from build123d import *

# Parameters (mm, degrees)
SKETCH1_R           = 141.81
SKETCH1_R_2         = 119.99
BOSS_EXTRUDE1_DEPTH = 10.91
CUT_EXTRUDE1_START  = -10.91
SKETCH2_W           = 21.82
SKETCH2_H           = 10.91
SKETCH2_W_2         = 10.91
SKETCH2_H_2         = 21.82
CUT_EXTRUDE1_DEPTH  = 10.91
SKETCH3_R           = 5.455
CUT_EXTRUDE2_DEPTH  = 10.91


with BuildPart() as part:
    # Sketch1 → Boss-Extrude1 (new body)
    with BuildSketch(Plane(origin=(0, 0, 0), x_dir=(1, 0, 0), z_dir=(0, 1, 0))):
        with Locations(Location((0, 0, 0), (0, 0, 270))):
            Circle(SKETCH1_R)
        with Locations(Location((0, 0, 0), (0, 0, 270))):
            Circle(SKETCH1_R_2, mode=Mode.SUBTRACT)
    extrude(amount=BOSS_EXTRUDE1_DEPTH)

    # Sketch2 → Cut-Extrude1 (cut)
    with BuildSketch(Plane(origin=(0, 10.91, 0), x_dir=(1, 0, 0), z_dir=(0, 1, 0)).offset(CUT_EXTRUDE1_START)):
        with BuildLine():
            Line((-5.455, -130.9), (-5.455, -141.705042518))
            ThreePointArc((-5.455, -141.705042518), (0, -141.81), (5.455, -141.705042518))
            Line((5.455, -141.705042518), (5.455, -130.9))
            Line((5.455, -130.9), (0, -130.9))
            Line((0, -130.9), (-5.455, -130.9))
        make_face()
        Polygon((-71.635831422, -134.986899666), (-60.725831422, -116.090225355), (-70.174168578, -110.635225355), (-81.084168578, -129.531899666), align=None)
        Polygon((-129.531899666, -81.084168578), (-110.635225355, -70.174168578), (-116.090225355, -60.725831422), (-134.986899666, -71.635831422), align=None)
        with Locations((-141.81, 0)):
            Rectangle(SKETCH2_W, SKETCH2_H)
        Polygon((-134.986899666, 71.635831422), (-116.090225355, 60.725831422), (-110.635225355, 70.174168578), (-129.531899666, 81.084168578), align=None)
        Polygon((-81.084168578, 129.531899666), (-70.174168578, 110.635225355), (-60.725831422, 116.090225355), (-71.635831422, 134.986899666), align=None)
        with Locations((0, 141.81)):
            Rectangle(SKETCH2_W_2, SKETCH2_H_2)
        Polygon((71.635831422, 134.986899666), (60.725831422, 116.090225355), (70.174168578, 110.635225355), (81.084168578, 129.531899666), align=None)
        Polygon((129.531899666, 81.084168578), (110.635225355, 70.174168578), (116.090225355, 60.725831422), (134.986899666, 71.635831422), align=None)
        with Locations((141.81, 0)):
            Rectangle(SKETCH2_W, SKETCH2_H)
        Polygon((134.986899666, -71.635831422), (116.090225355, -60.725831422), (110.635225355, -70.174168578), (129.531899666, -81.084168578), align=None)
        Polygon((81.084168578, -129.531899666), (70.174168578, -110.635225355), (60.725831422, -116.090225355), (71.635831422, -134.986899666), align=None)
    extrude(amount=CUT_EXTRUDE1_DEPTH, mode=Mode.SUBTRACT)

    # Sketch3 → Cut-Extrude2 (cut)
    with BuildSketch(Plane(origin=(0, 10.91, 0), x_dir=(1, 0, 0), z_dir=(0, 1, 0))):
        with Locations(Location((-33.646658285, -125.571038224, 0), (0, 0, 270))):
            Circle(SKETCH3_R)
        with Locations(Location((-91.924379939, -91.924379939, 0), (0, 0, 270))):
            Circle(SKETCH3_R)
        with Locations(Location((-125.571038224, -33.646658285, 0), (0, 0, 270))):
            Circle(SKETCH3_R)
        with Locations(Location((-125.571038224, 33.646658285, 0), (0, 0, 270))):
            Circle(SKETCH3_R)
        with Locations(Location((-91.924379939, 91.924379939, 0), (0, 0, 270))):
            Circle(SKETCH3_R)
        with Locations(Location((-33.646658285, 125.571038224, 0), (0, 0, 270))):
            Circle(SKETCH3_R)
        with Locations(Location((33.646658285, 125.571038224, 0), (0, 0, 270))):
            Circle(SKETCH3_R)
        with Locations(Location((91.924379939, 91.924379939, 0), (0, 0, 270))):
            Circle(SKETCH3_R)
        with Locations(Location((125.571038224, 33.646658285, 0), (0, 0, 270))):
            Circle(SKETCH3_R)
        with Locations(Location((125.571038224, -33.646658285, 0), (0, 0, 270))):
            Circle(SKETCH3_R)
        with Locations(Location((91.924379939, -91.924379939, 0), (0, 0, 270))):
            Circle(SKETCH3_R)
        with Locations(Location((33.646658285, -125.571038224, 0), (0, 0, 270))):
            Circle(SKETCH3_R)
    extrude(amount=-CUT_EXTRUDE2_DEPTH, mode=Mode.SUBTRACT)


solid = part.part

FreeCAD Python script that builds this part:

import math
import FreeCAD as App
import Part
import Sketcher
from FreeCAD import Vector
Q = App.Units.Quantity


def add_polygon(sketch, points):
    """Adds a closed chain of lines whose ends are joined by coincident constraints."""
    first, n = sketch.GeometryCount, len(points)
    for a, b in zip(points, points[1:] + points[:1]):
        sketch.addGeometry(Part.LineSegment(App.Vector(*a, 0), App.Vector(*b, 0)), False)
    for i in range(n):
        sketch.addConstraint(Sketcher.Constraint("Coincident", first + i, 2, first + (i + 1) % n, 1))

doc = App.newDocument("Part")
params = doc.addObject("Spreadsheet::Sheet", "Params")
for row, (alias, value) in enumerate([
    ("sketch1_diameter", "283.62 mm"),
    ("sketch1_diameter2", "239.98 mm"),
    ("pad1_length", "10.91 mm"),
    ("sketch2_radius", "141.81 mm"),
    ("sketch2_width", "10.91 mm"),
    ("sketch2_width2", "21.82 mm"),
    ("sketch2_length", "21.82 mm"),
    ("sketch2_length2", "10.91 mm"),
    ("pocket1_length", "10.91 mm"),
    ("sketch3_diameter", "10.91 mm"),
    ("pocket2_length", "10.91 mm"),
], start=1):
    params.set(f"A{row}", alias)
    params.set(f"B{row}", "=" + value)
    params.setAlias(f"B{row}", alias)

body = doc.addObject("PartDesign::Body", "Body")

# Sketch on XZ plane
sketch1 = body.newObject("Sketcher::SketchObject", "Sketch")
sketch1.AttachmentSupport = (doc.getObject("XZ_Plane"), [""])
sketch1.MapMode = "FlatFace"
sketch1.addGeometry([
    Part.Circle(Vector(0, 0, 0), Vector(0, 0, 1), 142),
    Part.Circle(Vector(0, 0, 0), Vector(0, 0, 1), 120),
], False)
sketch1.addConstraint([
    Sketcher.Constraint("Coincident", 0, 3, -1, 1),
    Sketcher.Constraint("Coincident", 1, 3, -1, 1),
    Sketcher.Constraint("Diameter", 0, 283.62),
    Sketcher.Constraint("Diameter", 1, 239.98),
])
sketch1.setExpression("Constraints[2]", "Params.sketch1_diameter")
sketch1.setExpression("Constraints[3]", "Params.sketch1_diameter2")
pad1 = body.newObject("PartDesign::Pad", "Pad")
pad1.Profile = sketch1
pad1.setExpression("Length", "Params.pad1_length")
pad1.Reversed = True

# Sketch on XZ plane
sketch2 = body.newObject("Sketcher::SketchObject", "Sketch001")
sketch2.AttachmentSupport = (doc.getObject("XZ_Plane"), [""])
sketch2.MapMode = "FlatFace"
sketch2.addGeometry(Part.LineSegment(Vector(-5, 131, 0), Vector(-5, 142, 0)), False)  # 0
sketch2.addGeometry(Part.ArcOfCircle(Part.Circle(Vector(0, 0, 0), Vector(0, 0, 1), 142), math.radians(87.8), math.radians(92.2)), False)  # 1
sketch2.addGeometry(Part.LineSegment(Vector(5, 142, 0), Vector(5, 131, 0)), False)  # 2
sketch2.addGeometry(Part.LineSegment(Vector(5, 131, 0), Vector(-5, 131, 0)), False)  # 3
add_polygon(sketch2, [(-72, 135), (-61, 116), (-70, 111), (-81, 130)])  # lines 4-7
add_polygon(sketch2, [(-130, 81), (-111, 70), (-116, 61), (-135, 72)])  # lines 8-11
add_polygon(sketch2, [(-153, -5), (-153, 5), (-131, 5), (-131, -5)])  # lines 12-15
add_polygon(sketch2, [(-135, -72), (-116, -61), (-111, -70), (-130, -81)])  # lines 16-19
add_polygon(sketch2, [(-81, -130), (-70, -111), (-61, -116), (-72, -135)])  # lines 20-23
add_polygon(sketch2, [(-5, -153), (-5, -131), (5, -131), (5, -153)])  # lines 24-27
add_polygon(sketch2, [(72, -135), (61, -116), (70, -111), (81, -130)])  # lines 28-31
add_polygon(sketch2, [(130, -81), (111, -70), (116, -61), (135, -72)])  # lines 32-35
add_polygon(sketch2, [(131, -5), (131, 5), (153, 5), (153, -5)])  # lines 36-39
add_polygon(sketch2, [(135, 72), (116, 61), (111, 70), (130, 81)])  # lines 40-43
add_polygon(sketch2, [(81, 130), (70, 111), (61, 116), (72, 135)])  # lines 44-47
sketch2.addConstraint([
    Sketcher.Constraint("Coincident", 0, 2, 1, 2),
    Sketcher.Constraint("Coincident", 1, 1, 2, 1),
    Sketcher.Constraint("Coincident", 2, 2, 3, 1),
    Sketcher.Constraint("Coincident", 3, 2, 0, 1),
    Sketcher.Constraint("Vertical", 0),
    Sketcher.Constraint("Vertical", 2),
    Sketcher.Constraint("Horizontal", 3),
    Sketcher.Constraint("Vertical", 12),
    Sketcher.Constraint("Horizontal", 13),
    Sketcher.Constraint("Vertical", 14),
    Sketcher.Constraint("Horizontal", 15),
    Sketcher.Constraint("Vertical", 24),
    Sketcher.Constraint("Horizontal", 25),
    Sketcher.Constraint("Vertical", 26),
    Sketcher.Constraint("Horizontal", 27),
    Sketcher.Constraint("Vertical", 36),
    Sketcher.Constraint("Horizontal", 37),
    Sketcher.Constraint("Vertical", 38),
    Sketcher.Constraint("Horizontal", 39),
    Sketcher.Constraint("Coincident", 1, 3, -1, 1),
    Sketcher.Constraint("Symmetric", 2, 2, 24, 2, -1, 1),
    Sketcher.Constraint("Symmetric", 4, 2, 28, 2, -1, 1),
    Sketcher.Constraint("Symmetric", 5, 2, 29, 2, -1, 1),
    Sketcher.Constraint("Symmetric", 6, 2, 30, 2, -1, 1),
    Sketcher.Constraint("Symmetric", 7, 2, 31, 2, -1, 1),
    Sketcher.Constraint("Symmetric", 8, 2, 32, 2, -1, 1),
    Sketcher.Constraint("Symmetric", 9, 2, 33, 2, -1, 1),
    Sketcher.Constraint("Symmetric", 10, 2, 34, 2, -1, 1),
    Sketcher.Constraint("Symmetric", 11, 2, 35, 2, -1, 1),
    Sketcher.Constraint("Symmetric", 14, 2, 36, 2, -1, 1),
    Sketcher.Constraint("Symmetric", 12, 2, 38, 2, -1, 1),
    Sketcher.Constraint("Symmetric", 16, 2, 40, 2, -1, 1),
    Sketcher.Constraint("Symmetric", 17, 2, 41, 2, -1, 1),
    Sketcher.Constraint("Symmetric", 18, 2, 42, 2, -1, 1),
    Sketcher.Constraint("Symmetric", 19, 2, 43, 2, -1, 1),
    Sketcher.Constraint("Symmetric", 20, 2, 44, 2, -1, 1),
    Sketcher.Constraint("Symmetric", 21, 2, 45, 2, -1, 1),
    Sketcher.Constraint("Symmetric", 22, 2, 46, 2, -1, 1),
    Sketcher.Constraint("Symmetric", 23, 2, 47, 2, -1, 1),
    Sketcher.Constraint("Symmetric", 21, 2, 28, 2, -2),
    Sketcher.Constraint("Symmetric", 20, 2, 29, 2, -2),
    Sketcher.Constraint("Symmetric", 23, 2, 30, 2, -2),
    Sketcher.Constraint("Symmetric", 22, 2, 31, 2, -2),
    Sketcher.Constraint("Symmetric", 17, 2, 32, 2, -2),
    Sketcher.Constraint("Symmetric", 16, 2, 33, 2, -2),
    Sketcher.Constraint("Symmetric", 19, 2, 34, 2, -2),
    Sketcher.Constraint("Symmetric", 18, 2, 35, 2, -2),
    Sketcher.Constraint("Perpendicular", 4, 5),
    Sketcher.Constraint("Perpendicular", 5, 6),
    Sketcher.Constraint("Perpendicular", 6, 7),
    Sketcher.Constraint("Perpendicular", 8, 9),
    Sketcher.Constraint("Perpendicular", 9, 10),
    Sketcher.Constraint("Perpendicular", 10, 11),
    Sketcher.Constraint("Parallel", 7, 16),
    Sketcher.Constraint("Horizontal", 0, 2, 1, 1),
    Sketcher.Constraint("Horizontal", 13, 2, 36, 2),
    Sketcher.Constraint("Vertical", 2, 2, 25, 2),
    Sketcher.Constraint("Equal", 27, 12),
    Sketcher.Constraint("Equal", 39, 24),
    Sketcher.Constraint("Equal", 6, 8),
    Sketcher.Constraint("Equal", 7, 9),
    Sketcher.Constraint("Angle", 4, Q("-60 deg")),
    Sketcher.Constraint("Radius", 1, 141.81),
    Sketcher.Constraint("DistanceX", 3, 2, 3, 1, 10.91),
    Sketcher.Constraint("DistanceX", 13, 1, 13, 2, 21.82),
    Sketcher.Constraint("DistanceY", -1, 1, 2, 2, 130.9),
    Sketcher.Constraint("DistanceX", 13, 2, -1, 1, 130.9),
    Sketcher.Constraint("Distance", 4, 21.82),
    Sketcher.Constraint("Distance", 5, 10.91),
    Sketcher.Constraint("DistanceY", -1, 1, 6, 2, 129.5319),
    Sketcher.Constraint("DistanceX", 10, 2, -1, 1, 134.9869),
    Sketcher.Constraint("DistanceX", 4, 2, -1, 1, 60.725831),
    Sketcher.Constraint("DistanceY", -1, 1, 8, 2, 70.174169),
])
sketch2.setExpression("Constraints[106]", "Params.sketch2_radius")
sketch2.setExpression("Constraints[107]", "Params.sketch2_width")
sketch2.setExpression("Constraints[108]", "Params.sketch2_width2")
sketch2.setExpression("Constraints[111]", "Params.sketch2_length")
sketch2.setExpression("Constraints[112]", "Params.sketch2_length2")
pocket1 = body.newObject("PartDesign::Pocket", "Pocket")
pocket1.Profile = sketch2
pocket1.setExpression("Length", "Params.pocket1_length")

# Sketch on XZ plane
sketch3 = body.newObject("Sketcher::SketchObject", "Sketch002")
sketch3.AttachmentSupport = (doc.getObject("XZ_Plane"), [""])
sketch3.MapMode = "FlatFace"
sketch3.AttachmentOffset = App.Placement(Vector(0, 0, -10.91), App.Rotation())
sketch3.addGeometry([
    Part.Circle(Vector(-34, 126, 0), Vector(0, 0, 1), 5),  # 0
    Part.Circle(Vector(-92, 92, 0), Vector(0, 0, 1), 5),  # 1
    Part.Circle(Vector(-126, 34, 0), Vector(0, 0, 1), 5),  # 2
    Part.Circle(Vector(-126, -34, 0), Vector(0, 0, 1), 5),  # 3
    Part.Circle(Vector(-92, -92, 0), Vector(0, 0, 1), 5),  # 4
    Part.Circle(Vector(-34, -126, 0), Vector(0, 0, 1), 5),  # 5
    Part.Circle(Vector(34, -126, 0), Vector(0, 0, 1), 5),  # 6
    Part.Circle(Vector(92, -92, 0), Vector(0, 0, 1), 5),  # 7
    Part.Circle(Vector(126, -34, 0), Vector(0, 0, 1), 5),  # 8
    Part.Circle(Vector(126, 34, 0), Vector(0, 0, 1), 5),  # 9
    Part.Circle(Vector(92, 92, 0), Vector(0, 0, 1), 5),  # 10
    Part.Circle(Vector(34, 126, 0), Vector(0, 0, 1), 5),  # 11
], False)
sketch3.addConstraint([
    Sketcher.Constraint("Equal", 0, 1),
    Sketcher.Constraint("Equal", 1, 2),
    Sketcher.Constraint("Equal", 2, 3),
    Sketcher.Constraint("Equal", 3, 4),
    Sketcher.Constraint("Equal", 4, 5),
    Sketcher.Constraint("Equal", 5, 6),
    Sketcher.Constraint("Equal", 6, 7),
    Sketcher.Constraint("Equal", 7, 8),
    Sketcher.Constraint("Equal", 8, 9),
    Sketcher.Constraint("Equal", 9, 10),
    Sketcher.Constraint("Equal", 10, 11),
    Sketcher.Constraint("Symmetric", 0, 3, 6, 3, -1, 1),
    Sketcher.Constraint("Symmetric", 1, 3, 7, 3, -1, 1),
    Sketcher.Constraint("Symmetric", 2, 3, 8, 3, -1, 1),
    Sketcher.Constraint("Symmetric", 3, 3, 9, 3, -1, 1),
    Sketcher.Constraint("Symmetric", 4, 3, 10, 3, -1, 1),
    Sketcher.Constraint("Symmetric", 5, 3, 11, 3, -1, 1),
    Sketcher.Constraint("Symmetric", 5, 3, 6, 3, -2),
    Sketcher.Constraint("Symmetric", 4, 3, 7, 3, -2),
    Sketcher.Constraint("Symmetric", 3, 3, 8, 3, -2),
    Sketcher.Constraint("Diameter", 0, 10.91),
    Sketcher.Constraint("DistanceX", 0, 3, -1, 1, 33.646658),
    Sketcher.Constraint("DistanceY", -1, 1, 0, 3, 125.571038),
    Sketcher.Constraint("DistanceX", 1, 3, -1, 1, 91.92438),
    Sketcher.Constraint("DistanceY", -1, 1, 1, 3, 91.92438),
    Sketcher.Constraint("DistanceX", 2, 3, -1, 1, 125.571038),
    Sketcher.Constraint("DistanceY", -1, 1, 2, 3, 33.646658),
])
sketch3.setExpression("Constraints[20]", "Params.sketch3_diameter")
pocket2 = body.newObject("PartDesign::Pocket", "Pocket001")
pocket2.Profile = sketch3
pocket2.setExpression("Length", "Params.pocket2_length")
pocket2.Reversed = True

doc.recompute()
